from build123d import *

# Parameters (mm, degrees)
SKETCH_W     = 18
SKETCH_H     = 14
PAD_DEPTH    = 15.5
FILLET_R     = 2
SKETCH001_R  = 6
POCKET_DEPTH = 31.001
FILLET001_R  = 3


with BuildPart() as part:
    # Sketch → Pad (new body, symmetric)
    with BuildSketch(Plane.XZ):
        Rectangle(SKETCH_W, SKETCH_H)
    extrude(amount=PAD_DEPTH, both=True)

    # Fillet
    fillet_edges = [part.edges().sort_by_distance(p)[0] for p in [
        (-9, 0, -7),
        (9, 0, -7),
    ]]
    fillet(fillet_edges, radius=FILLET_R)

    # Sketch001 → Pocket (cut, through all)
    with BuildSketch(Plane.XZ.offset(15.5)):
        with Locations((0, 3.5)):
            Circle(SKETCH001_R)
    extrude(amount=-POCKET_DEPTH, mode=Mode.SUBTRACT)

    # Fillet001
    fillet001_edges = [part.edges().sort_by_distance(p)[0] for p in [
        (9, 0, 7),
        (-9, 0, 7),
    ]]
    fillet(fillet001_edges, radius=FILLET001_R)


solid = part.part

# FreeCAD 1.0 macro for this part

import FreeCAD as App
import Part
import Sketcher


def edges_at(feature, points):
    """Names of the edges that pass closest to the given points."""
    edges = feature.Shape.Edges
    near = lambda p: min(range(len(edges)), key=lambda i: edges[i].distToShape(Part.Vertex(*p))[0])
    return sorted({f"Edge{near(p) + 1}" for p in points})

doc = App.newDocument("Part")
body = doc.addObject("PartDesign::Body", "Body")

# Sketch on XZ plane
sketch1 = doc.addObject("Sketcher::SketchObject", "Sketch")
body.addObject(sketch1)
sketch1.AttachmentSupport = (doc.XZ_Plane, [""])
sketch1.MapMode = "FlatFace"
sketch1.addGeometry(Part.LineSegment(App.Vector(-9, 7, 0), App.Vector(-9, -7, 0)), False)
sketch1.addGeometry(Part.LineSegment(App.Vector(-9, -7, 0), App.Vector(9, -7, 0)), False)
sketch1.addGeometry(Part.LineSegment(App.Vector(9, -7, 0), App.Vector(9, 7, 0)), False)
sketch1.addGeometry(Part.LineSegment(App.Vector(9, 7, 0), App.Vector(-9, 7, 0)), False)
sketch1.addConstraint(Sketcher.Constraint("Coincident", 0, 2, 1, 1))
sketch1.addConstraint(Sketcher.Constraint("Coincident", 1, 2, 2, 1))
sketch1.addConstraint(Sketcher.Constraint("Coincident", 2, 2, 3, 1))
sketch1.addConstraint(Sketcher.Constraint("Coincident", 3, 2, 0, 1))
sketch1.addConstraint(Sketcher.Constraint("Vertical", 0))
sketch1.addConstraint(Sketcher.Constraint("Horizontal", 1))
sketch1.addConstraint(Sketcher.Constraint("Vertical", 2))
sketch1.addConstraint(Sketcher.Constraint("Horizontal", 3))
sketch1.addConstraint(Sketcher.Constraint("Symmetric", 0, 2, 2, 2, -1, 1))
sketch1.addConstraint(Sketcher.Constraint("DistanceX", 1, 1, 1, 2, 18.0))
sketch1.addConstraint(Sketcher.Constraint("DistanceY", 0, 2, 0, 1, 14.0))
pad1 = doc.addObject("PartDesign::Pad", "Pad")
body.addObject(pad1)
pad1.Profile = sketch1
pad1.Length = 31
pad1.Midplane = True
doc.recompute()

fillet = doc.addObject("PartDesign::Fillet", "Fillet")
body.addObject(fillet)
fillet.Base = (pad1, edges_at(pad1, [(-9, 0, -7), (9, 0, -7)]))
fillet.Radius = 2

# Sketch on XZ plane
sketch2 = doc.addObject("Sketcher::SketchObject", "Sketch001")
body.addObject(sketch2)
sketch2.AttachmentSupport = (doc.XZ_Plane, [""])
sketch2.MapMode = "FlatFace"
sketch2.AttachmentOffset = App.Placement(App.Vector(0, 0, 15.5), App.Rotation())
sketch2.addGeometry(Part.Circle(App.Vector(0, 3.5, 0), App.Vector(0, 0, 1), 6), False)
sketch2.addConstraint(Sketcher.Constraint("PointOnObject", 0, 3, -2))
sketch2.addConstraint(Sketcher.Constraint("Diameter", 0, 12.0))
sketch2.addConstraint(Sketcher.Constraint("DistanceY", -1, 1, 0, 3, 3.5))
pocket1 = doc.addObject("PartDesign::Pocket", "Pocket")
body.addObject(pocket1)
pocket1.Profile = sketch2
pocket1.Type = "ThroughAll"
doc.recompute()

fillet2 = doc.addObject("PartDesign::Fillet", "Fillet001")
body.addObject(fillet2)
fillet2.Base = (pocket1, edges_at(pocket1, [(9, 0, 7), (-9, 0, 7)]))
fillet2.Radius = 3

doc.recompute()
